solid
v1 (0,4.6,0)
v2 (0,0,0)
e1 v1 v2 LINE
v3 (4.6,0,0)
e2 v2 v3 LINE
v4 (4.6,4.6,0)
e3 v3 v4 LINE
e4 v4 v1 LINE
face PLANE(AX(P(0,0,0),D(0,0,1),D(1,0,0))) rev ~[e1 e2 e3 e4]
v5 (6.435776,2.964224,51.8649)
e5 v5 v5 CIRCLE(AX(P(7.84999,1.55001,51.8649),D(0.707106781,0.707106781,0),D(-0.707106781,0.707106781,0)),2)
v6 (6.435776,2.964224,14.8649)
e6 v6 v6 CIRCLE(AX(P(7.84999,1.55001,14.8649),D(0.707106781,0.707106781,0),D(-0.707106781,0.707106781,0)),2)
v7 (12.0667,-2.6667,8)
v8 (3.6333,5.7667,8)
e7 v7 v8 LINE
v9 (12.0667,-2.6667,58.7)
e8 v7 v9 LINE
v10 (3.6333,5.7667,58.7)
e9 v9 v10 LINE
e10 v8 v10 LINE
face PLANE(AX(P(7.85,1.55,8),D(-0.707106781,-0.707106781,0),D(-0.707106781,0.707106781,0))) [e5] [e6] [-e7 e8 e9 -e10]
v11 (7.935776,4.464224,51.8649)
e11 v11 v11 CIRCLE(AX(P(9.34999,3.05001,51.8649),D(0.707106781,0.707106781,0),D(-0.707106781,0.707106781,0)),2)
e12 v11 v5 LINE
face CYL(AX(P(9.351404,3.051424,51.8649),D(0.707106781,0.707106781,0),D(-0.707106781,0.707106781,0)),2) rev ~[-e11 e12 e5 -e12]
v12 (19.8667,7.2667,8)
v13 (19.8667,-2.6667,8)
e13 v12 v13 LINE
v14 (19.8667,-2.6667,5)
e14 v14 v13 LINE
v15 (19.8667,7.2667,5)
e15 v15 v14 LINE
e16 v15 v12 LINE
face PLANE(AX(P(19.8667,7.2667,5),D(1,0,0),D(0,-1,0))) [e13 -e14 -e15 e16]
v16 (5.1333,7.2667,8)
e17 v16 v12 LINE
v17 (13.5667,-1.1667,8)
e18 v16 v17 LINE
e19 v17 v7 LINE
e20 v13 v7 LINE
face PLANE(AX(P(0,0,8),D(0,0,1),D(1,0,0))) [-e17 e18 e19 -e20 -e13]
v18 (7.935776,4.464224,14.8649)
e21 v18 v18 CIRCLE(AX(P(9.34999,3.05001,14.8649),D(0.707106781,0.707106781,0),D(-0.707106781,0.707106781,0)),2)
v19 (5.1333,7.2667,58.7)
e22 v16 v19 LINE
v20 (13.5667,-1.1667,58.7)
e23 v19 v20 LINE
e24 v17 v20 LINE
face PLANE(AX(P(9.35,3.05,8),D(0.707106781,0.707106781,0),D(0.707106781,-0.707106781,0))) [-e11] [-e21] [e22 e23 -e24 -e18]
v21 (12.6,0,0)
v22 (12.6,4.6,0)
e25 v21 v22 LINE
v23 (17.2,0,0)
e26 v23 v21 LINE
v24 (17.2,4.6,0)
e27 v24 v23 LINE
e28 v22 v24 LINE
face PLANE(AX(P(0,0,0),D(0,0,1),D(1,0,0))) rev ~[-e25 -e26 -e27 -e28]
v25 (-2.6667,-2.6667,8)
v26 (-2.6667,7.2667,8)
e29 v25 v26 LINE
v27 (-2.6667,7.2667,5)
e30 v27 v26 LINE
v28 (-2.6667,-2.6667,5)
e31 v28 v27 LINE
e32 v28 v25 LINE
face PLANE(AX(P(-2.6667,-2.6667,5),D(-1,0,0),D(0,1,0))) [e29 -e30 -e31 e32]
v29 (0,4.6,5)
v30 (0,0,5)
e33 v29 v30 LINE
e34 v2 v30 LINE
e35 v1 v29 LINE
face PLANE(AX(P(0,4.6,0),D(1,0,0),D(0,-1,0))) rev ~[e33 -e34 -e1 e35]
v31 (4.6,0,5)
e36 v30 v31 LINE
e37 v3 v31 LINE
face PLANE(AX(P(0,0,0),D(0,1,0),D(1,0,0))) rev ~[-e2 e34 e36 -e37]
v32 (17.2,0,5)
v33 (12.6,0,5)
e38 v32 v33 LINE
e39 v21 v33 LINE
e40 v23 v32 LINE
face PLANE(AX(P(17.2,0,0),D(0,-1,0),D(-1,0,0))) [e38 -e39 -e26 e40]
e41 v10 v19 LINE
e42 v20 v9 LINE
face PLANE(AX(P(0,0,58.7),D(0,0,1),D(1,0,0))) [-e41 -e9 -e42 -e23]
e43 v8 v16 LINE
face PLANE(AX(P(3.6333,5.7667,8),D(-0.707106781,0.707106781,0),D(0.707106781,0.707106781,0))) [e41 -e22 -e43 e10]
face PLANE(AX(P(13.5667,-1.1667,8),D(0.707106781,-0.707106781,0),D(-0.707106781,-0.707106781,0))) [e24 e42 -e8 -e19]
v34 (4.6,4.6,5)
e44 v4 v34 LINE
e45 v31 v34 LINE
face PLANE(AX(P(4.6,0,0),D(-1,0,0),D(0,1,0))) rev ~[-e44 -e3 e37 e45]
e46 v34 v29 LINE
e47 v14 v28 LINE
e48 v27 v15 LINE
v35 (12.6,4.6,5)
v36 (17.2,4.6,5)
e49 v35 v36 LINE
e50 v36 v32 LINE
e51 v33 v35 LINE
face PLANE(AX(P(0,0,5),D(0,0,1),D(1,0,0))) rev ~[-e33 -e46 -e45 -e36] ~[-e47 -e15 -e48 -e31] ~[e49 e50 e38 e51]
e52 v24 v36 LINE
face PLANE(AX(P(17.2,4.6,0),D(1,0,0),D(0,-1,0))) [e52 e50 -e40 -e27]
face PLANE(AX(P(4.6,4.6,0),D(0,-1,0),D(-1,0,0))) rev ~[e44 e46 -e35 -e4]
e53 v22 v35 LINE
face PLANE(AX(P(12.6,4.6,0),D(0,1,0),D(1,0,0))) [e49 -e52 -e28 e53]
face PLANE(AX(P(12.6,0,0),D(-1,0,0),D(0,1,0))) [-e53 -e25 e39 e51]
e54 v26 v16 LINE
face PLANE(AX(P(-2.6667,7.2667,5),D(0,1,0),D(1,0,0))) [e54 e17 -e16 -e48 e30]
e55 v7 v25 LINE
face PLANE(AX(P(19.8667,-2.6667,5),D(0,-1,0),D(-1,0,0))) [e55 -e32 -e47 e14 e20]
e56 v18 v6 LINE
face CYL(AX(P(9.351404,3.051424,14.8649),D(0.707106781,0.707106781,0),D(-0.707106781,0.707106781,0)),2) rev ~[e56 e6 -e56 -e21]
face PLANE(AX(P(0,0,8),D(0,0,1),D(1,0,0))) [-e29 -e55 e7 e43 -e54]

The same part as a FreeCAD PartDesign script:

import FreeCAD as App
import Part
import Sketcher
from FreeCAD import Vector
Q = App.Units.Quantity


def add_polygon(sketch, points):
    """Adds a closed chain of lines whose ends are joined by coincident constraints."""
    first, n = sketch.GeometryCount, len(points)
    for a, b in zip(points, points[1:] + points[:1]):
        sketch.addGeometry(Part.LineSegment(App.Vector(*a, 0), App.Vector(*b, 0)), False)
    for i in range(n):
        sketch.addConstraint(Sketcher.Constraint("Coincident", first + i, 2, first + (i + 1) % n, 1))

doc = App.newDocument("Part")
body = doc.addObject("PartDesign::Body", "Body")
body.AllowCompound = True

sketch1 = doc.addObject("Sketcher::SketchObject", "Sketch")
body.addObject(sketch1)
sketch1.AttachmentSupport = (doc.XY_Plane, [""])
sketch1.MapMode = "FlatFace"
add_polygon(sketch1, [(0, 4.6), (0, 0), (4.6, 0), (4.6, 4.6)])
add_polygon(sketch1, [(17.2, 4.6), (12.6, 4.6), (12.6, 0), (17.2, 0)])
sketch1.addConstraint(Sketcher.Constraint("Vertical", 0))
sketch1.addConstraint(Sketcher.Constraint("Horizontal", 1))
sketch1.addConstraint(Sketcher.Constraint("Vertical", 2))
sketch1.addConstraint(Sketcher.Constraint("Horizontal", 3))
sketch1.addConstraint(Sketcher.Constraint("Horizontal", 4))
sketch1.addConstraint(Sketcher.Constraint("Vertical", 5))
sketch1.addConstraint(Sketcher.Constraint("Horizontal", 6))
sketch1.addConstraint(Sketcher.Constraint("Vertical", 7))
sketch1.addConstraint(Sketcher.Constraint("Coincident", 0, 2, -1, 1))
sketch1.addConstraint(Sketcher.Constraint("PointOnObject", 5, 2, -1))
sketch1.addConstraint(Sketcher.Constraint("Horizontal", 3, 2, 4, 2))
sketch1.addConstraint(Sketcher.Constraint("Equal", 3, 4))
sketch1.addConstraint(Sketcher.Constraint("Equal", 6, 0))
sketch1.addConstraint(Sketcher.Constraint("DistanceX", 1, 1, 1, 2, 4.6))
sketch1.addConstraint(Sketcher.Constraint("DistanceX", 2, 2, 4, 2, 8.0))
pad1 = doc.addObject("PartDesign::Pad", "Pad")
body.addObject(pad1)
pad1.Profile = sketch1
pad1.Length = 5

sketch2 = doc.addObject("Sketcher::SketchObject", "Sketch001")
body.addObject(sketch2)
sketch2.AttachmentSupport = (doc.XY_Plane, [""])
sketch2.MapMode = "FlatFace"
sketch2.AttachmentOffset = App.Placement(Vector(0, 0, 5), App.Rotation())
add_polygon(sketch2, [(20, 7), (-3, 7), (-3, -3), (20, -3)])
sketch2.addConstraint(Sketcher.Constraint("Horizontal", 0))
sketch2.addConstraint(Sketcher.Constraint("Vertical", 1))
sketch2.addConstraint(Sketcher.Constraint("Horizontal", 2))
sketch2.addConstraint(Sketcher.Constraint("Vertical", 3))
sketch2.addConstraint(Sketcher.Constraint("DistanceX", 0, 2, -1, 1, 2.6667))
sketch2.addConstraint(Sketcher.Constraint("DistanceY", 1, 2, -1, 1, 2.6667))
sketch2.addConstraint(Sketcher.Constraint("DistanceX", 0, 2, 0, 1, 22.5334))
sketch2.addConstraint(Sketcher.Constraint("DistanceY", 1, 2, 1, 1, 9.9334))
pad2 = doc.addObject("PartDesign::Pad", "Pad001")
body.addObject(pad2)
pad2.Profile = sketch2
pad2.Length = 3

sketch3 = doc.addObject("Sketcher::SketchObject", "Sketch002")
body.addObject(sketch3)
sketch3.AttachmentSupport = (doc.XY_Plane, [""])
sketch3.MapMode = "FlatFace"
sketch3.AttachmentOffset = App.Placement(Vector(0, 0, 8), App.Rotation())
add_polygon(sketch3, [(13.6, -1.2), (5.1, 7.3), (3.6, 5.8), (12.1, -2.7)])
sketch3.addConstraint(Sketcher.Constraint("Perpendicular", 0, 1))
sketch3.addConstraint(Sketcher.Constraint("Perpendicular", 1, 2))
sketch3.addConstraint(Sketcher.Constraint("Perpendicular", 2, 3))
sketch3.addConstraint(Sketcher.Constraint("Angle", 2, Q("-45 deg")))
sketch3.addConstraint(Sketcher.Constraint("DistanceX", 1, 2, 0, 2, 1.5))
sketch3.addConstraint(Sketcher.Constraint("Distance", 0, 11.9266))
sketch3.addConstraint(Sketcher.Constraint("DistanceX", -1, 1, 0, 2, 5.1333))
sketch3.addConstraint(Sketcher.Constraint("DistanceY", -1, 1, 0, 2, 7.2667))
pad3 = doc.addObject("PartDesign::Pad", "Pad002")
body.addObject(pad3)
pad3.Profile = sketch3
pad3.Length = 50.7

sketch4 = doc.addObject("Sketcher::SketchObject", "Sketch003")
body.addObject(sketch4)
sketch4.Placement = App.Placement(Vector(5.1333, 7.2667, 8), App.Rotation(Vector(-0.707106781, 0.707106781, 0), Vector(0, 0, 0.999999999), Vector(0.707106781, 0.707106781, 0), "ZXY"))
sketch4.addGeometry(Part.Circle(Vector(-6, 6.9, 0), Vector(0, 0, 1), 2), False)
sketch4.addGeometry(Part.Circle(Vector(-6, 43.9, 0), Vector(0, 0, 1), 2), False)
sketch4.addConstraint(Sketcher.Constraint("Equal", 0, 1))
sketch4.addConstraint(Sketcher.Constraint("Vertical", 0, 3, 1, 3))
sketch4.addConstraint(Sketcher.Constraint("Diameter", 0, 4.0))
sketch4.addConstraint(Sketcher.Constraint("DistanceY", 0, 3, 1, 3, 37.0))
sketch4.addConstraint(Sketcher.Constraint("DistanceY", -1, 1, 0, 3, 6.865))
sketch4.addConstraint(Sketcher.Constraint("DistanceX", 0, 3, -1, 1, 5.9633))
pocket1 = doc.addObject("PartDesign::Pocket", "Pocket")
body.addObject(pocket1)
pocket1.Profile = sketch4
pocket1.Length = 50.7

doc.recompute()
